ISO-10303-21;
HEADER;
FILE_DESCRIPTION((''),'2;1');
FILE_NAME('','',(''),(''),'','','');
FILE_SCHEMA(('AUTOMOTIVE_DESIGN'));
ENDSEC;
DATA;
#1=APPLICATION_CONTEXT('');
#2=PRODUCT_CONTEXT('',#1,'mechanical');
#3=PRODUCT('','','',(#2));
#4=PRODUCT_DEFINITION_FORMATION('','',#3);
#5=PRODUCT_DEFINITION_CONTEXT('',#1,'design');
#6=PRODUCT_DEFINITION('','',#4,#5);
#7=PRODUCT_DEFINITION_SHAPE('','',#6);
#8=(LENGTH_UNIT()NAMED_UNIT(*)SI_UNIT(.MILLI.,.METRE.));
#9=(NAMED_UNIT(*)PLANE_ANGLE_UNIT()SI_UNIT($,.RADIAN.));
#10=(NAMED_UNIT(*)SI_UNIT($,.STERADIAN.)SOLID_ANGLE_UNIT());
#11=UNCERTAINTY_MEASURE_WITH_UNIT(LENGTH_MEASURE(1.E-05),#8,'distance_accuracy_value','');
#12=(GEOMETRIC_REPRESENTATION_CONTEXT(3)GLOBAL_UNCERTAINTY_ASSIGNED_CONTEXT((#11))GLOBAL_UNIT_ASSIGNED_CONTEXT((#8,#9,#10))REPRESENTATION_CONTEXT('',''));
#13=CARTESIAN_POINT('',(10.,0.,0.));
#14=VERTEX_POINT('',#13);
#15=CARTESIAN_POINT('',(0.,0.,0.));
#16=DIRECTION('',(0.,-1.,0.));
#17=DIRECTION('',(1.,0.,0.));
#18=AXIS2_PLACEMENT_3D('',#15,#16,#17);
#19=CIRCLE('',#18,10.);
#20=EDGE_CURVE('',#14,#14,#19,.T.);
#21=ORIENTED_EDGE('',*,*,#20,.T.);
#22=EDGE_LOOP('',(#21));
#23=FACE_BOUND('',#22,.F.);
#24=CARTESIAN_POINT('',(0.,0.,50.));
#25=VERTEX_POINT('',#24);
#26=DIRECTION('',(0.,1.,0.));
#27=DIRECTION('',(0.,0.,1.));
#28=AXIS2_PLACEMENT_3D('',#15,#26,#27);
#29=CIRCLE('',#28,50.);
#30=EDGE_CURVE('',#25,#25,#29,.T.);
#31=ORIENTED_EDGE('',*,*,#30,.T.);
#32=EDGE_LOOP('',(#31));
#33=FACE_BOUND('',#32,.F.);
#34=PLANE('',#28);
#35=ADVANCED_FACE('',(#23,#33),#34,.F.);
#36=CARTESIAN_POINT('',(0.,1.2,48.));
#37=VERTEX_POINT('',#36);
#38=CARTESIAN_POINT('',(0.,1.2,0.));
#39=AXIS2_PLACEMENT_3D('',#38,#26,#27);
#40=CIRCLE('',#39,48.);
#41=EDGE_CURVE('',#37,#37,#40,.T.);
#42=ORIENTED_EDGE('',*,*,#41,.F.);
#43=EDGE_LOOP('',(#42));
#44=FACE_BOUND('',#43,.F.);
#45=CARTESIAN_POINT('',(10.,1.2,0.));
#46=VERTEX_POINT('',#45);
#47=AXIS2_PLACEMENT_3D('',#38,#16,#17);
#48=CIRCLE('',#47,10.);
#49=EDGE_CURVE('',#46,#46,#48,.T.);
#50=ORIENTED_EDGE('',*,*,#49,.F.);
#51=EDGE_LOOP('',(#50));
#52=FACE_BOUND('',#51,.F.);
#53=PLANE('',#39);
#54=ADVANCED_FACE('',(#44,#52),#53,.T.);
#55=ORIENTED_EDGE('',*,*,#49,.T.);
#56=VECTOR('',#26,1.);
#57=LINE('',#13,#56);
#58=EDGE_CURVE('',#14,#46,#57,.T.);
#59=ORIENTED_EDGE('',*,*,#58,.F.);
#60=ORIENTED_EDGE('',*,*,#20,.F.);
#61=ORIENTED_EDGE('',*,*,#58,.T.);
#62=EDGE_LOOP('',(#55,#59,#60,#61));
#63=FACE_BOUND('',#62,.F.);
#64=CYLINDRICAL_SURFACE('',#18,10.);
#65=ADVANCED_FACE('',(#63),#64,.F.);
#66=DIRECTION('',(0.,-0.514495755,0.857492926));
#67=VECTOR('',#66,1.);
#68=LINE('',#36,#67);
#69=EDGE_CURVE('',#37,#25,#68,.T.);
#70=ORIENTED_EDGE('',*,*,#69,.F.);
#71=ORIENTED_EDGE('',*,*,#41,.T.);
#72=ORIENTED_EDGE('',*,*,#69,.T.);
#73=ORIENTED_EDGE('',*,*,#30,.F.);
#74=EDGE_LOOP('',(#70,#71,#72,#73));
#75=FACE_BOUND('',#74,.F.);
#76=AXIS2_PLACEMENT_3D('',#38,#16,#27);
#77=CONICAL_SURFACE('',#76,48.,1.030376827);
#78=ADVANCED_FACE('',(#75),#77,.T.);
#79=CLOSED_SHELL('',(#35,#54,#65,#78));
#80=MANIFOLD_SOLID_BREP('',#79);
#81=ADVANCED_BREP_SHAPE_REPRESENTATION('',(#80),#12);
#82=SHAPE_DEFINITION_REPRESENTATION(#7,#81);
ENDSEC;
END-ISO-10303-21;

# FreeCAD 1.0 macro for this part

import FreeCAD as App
import Part
import Sketcher

V = App.Vector

doc = App.newDocument("Part")
body = doc.addObject("PartDesign::Body", "Body")

# Sketch on YZ plane
sketch1 = body.newObject("Sketcher::SketchObject", "Sketch")
sketch1.AttachmentSupport = (doc.getObject("YZ_Plane"), [""])
sketch1.MapMode = "FlatFace"
sketch1.addGeometry([
    Part.LineSegment(V(0, 0, 0), V(1.2, 0, 0)),
    Part.LineSegment(V(1.2, 0, 0), V(1.2, 48, 0)),
    Part.LineSegment(V(1.2, 48, 0), V(0, 50, 0)),
    Part.LineSegment(V(0, 50, 0), V(0, 0, 0)),
], False)
sketch1.addConstraint([
    Sketcher.Constraint("Coincident", 0, 2, 1, 1),
    Sketcher.Constraint("Coincident", 1, 2, 2, 1),
    Sketcher.Constraint("Coincident", 2, 2, 3, 1),
    Sketcher.Constraint("Coincident", 3, 2, 0, 1),
    Sketcher.Constraint("Horizontal", 0),
    Sketcher.Constraint("Vertical", 1),
    Sketcher.Constraint("Vertical", 3),
    Sketcher.Constraint("Coincident", 3, 2, -1, 1),
    Sketcher.Constraint("DistanceY", 1, 1, 1, 2, 48.0),
    Sketcher.Constraint("DistanceY", 3, 2, 3, 1, 50.0),
    Sketcher.Constraint("DistanceX", 0, 1, 0, 2, 1.2),
])
revolution = body.newObject("PartDesign::Revolution", "Revolution")
revolution.Profile = sketch1
revolution.ReferenceAxis = (sketch1, ["H_Axis"])
revolution.Angle = 360

# Sketch on XZ plane
sketch2 = body.newObject("Sketcher::SketchObject", "Sketch001")
sketch2.AttachmentSupport = (doc.getObject("XZ_Plane"), [""])
sketch2.MapMode = "FlatFace"
sketch2.addGeometry(Part.Circle(V(0, 0, 0), V(0, 0, 1), 10), False)
sketch2.addConstraint([
    Sketcher.Constraint("Coincident", 0, 3, -1, 1),
    Sketcher.Constraint("Diameter", 0, 20.0),
])
pocket1 = body.newObject("PartDesign::Pocket", "Pocket")
pocket1.Profile = sketch2
pocket1.Type = "ThroughAll"
pocket1.Midplane = True

doc.recompute()
